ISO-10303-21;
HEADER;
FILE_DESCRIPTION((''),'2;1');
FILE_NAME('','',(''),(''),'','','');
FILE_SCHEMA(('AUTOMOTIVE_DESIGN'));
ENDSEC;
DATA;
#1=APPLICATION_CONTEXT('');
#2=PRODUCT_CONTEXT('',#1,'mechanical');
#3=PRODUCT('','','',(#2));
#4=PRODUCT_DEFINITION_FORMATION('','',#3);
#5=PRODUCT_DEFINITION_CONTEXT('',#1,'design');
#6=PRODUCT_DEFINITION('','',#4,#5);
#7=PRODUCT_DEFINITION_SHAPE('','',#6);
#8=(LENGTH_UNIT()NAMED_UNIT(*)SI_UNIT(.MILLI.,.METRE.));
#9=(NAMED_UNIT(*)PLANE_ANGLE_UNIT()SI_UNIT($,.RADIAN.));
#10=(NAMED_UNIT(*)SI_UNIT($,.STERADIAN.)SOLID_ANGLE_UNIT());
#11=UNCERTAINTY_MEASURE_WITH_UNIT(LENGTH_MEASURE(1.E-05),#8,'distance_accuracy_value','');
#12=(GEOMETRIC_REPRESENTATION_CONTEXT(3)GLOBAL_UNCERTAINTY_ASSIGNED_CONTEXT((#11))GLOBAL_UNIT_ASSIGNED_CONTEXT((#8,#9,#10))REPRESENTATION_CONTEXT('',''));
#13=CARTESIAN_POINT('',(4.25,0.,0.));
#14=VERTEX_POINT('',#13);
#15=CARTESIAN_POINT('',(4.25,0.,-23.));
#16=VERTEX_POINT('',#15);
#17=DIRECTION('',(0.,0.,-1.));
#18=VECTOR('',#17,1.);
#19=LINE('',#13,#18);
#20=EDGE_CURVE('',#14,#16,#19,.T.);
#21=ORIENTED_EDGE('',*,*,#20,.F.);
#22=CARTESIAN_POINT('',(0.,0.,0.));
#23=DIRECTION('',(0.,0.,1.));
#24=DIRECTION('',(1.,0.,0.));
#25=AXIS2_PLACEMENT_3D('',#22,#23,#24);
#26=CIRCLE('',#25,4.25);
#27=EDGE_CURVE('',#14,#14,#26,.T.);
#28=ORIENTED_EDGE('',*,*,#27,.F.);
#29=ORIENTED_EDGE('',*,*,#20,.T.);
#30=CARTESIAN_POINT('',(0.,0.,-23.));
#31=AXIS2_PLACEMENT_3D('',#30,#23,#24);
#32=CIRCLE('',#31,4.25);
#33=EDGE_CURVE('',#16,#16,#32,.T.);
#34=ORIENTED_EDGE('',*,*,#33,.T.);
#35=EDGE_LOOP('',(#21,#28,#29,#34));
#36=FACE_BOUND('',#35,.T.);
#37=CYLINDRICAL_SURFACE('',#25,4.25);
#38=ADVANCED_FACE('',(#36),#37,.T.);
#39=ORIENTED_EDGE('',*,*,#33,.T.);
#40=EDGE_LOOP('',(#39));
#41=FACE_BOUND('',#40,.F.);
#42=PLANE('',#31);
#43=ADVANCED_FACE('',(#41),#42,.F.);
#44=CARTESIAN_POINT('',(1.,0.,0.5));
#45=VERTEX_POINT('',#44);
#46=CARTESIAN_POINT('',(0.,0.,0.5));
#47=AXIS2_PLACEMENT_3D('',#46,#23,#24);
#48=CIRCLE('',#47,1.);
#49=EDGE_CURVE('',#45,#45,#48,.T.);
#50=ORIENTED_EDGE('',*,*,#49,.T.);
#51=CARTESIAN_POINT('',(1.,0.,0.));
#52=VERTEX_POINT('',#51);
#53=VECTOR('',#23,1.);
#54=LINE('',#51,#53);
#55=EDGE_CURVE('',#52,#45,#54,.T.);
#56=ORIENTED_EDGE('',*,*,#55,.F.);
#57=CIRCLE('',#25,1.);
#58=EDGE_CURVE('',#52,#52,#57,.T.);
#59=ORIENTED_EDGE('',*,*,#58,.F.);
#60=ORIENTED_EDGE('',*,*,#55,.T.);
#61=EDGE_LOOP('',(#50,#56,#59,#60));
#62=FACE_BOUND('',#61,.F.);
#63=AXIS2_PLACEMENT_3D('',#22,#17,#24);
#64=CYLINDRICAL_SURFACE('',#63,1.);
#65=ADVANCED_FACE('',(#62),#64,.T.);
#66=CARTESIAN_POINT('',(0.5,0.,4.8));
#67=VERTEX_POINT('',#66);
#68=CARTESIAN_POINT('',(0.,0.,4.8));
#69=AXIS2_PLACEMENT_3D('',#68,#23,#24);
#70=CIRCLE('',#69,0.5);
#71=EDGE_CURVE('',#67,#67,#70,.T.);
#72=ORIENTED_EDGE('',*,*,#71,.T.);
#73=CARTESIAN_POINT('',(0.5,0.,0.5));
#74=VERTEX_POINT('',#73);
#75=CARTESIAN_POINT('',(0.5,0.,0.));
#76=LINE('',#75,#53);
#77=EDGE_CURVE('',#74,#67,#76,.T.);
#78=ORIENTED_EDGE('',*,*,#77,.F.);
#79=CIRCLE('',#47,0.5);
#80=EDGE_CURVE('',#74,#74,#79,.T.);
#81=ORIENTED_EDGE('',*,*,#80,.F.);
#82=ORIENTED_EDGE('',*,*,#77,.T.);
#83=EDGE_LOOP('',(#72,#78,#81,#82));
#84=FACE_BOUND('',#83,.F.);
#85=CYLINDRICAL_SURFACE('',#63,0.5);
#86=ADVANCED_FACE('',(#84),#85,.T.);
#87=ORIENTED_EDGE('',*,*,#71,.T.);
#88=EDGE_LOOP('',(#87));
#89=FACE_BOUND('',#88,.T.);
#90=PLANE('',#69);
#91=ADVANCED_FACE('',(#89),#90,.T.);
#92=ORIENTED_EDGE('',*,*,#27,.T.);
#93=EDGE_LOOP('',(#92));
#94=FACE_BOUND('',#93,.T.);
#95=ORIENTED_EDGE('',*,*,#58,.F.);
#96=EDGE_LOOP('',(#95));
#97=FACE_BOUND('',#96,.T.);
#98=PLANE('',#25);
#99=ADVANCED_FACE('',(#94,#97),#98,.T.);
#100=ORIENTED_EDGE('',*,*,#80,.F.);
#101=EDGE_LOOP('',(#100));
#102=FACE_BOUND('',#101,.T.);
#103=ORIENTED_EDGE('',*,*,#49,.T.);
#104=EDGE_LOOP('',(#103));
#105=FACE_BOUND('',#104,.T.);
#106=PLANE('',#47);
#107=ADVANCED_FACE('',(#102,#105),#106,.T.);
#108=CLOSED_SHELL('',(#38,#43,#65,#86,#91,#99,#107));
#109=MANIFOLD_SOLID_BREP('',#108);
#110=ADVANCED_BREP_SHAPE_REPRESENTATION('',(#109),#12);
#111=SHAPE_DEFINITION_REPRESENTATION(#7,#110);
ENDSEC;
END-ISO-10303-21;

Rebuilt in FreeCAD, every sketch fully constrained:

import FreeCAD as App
import Part
import Sketcher

doc = App.newDocument("Part")
body = doc.addObject("PartDesign::Body", "Body")

# Sketch on XY plane
sketch1 = body.newObject("Sketcher::SketchObject", "Sketch")
sketch1.AttachmentSupport = (doc.getObject("XY_Plane"), [""])
sketch1.MapMode = "FlatFace"
sketch1.addGeometry(Part.Circle(App.Vector(0, 0, 0), App.Vector(0, 0, 1), 4.2), False)
sketch1.addConstraint([
    Sketcher.Constraint("Coincident", 0, 3, -1, 1),
    Sketcher.Constraint("Diameter", 0, 8.5),
])
pad1 = body.newObject("PartDesign::Pad", "Pad")
pad1.Profile = sketch1
pad1.Length = 23
pad1.Reversed = True

# Sketch on XY plane
sketch2 = body.newObject("Sketcher::SketchObject", "Sketch001")
sketch2.AttachmentSupport = (doc.getObject("XY_Plane"), [""])
sketch2.MapMode = "FlatFace"
sketch2.addGeometry(Part.Circle(App.Vector(0, 0, 0), App.Vector(0, 0, 1), 0.5), False)
sketch2.addConstraint([
    Sketcher.Constraint("Coincident", 0, 3, -1, 1),
    Sketcher.Constraint("Diameter", 0, 1.0),
])
pad2 = body.newObject("PartDesign::Pad", "Pad001")
pad2.Profile = sketch2
pad2.Length = 4.8

# Sketch on XY plane
sketch3 = body.newObject("Sketcher::SketchObject", "Sketch002")
sketch3.AttachmentSupport = (doc.getObject("XY_Plane"), [""])
sketch3.MapMode = "FlatFace"
sketch3.addGeometry([
    Part.Circle(App.Vector(0, 0, 0), App.Vector(0, 0, 1), 1),
    Part.Circle(App.Vector(0, 0, 0), App.Vector(0, 0, 1), 0.5),
], False)
sketch3.addConstraint([
    Sketcher.Constraint("Coincident", 0, 3, -1, 1),
    Sketcher.Constraint("Coincident", 1, 3, -1, 1),
    Sketcher.Constraint("Diameter", 0, 2.0),
    Sketcher.Constraint("Diameter", 1, 1.0),
])
pad3 = body.newObject("PartDesign::Pad", "Pad002")
pad3.Profile = sketch3
pad3.Length = 0.5

doc.recompute()
